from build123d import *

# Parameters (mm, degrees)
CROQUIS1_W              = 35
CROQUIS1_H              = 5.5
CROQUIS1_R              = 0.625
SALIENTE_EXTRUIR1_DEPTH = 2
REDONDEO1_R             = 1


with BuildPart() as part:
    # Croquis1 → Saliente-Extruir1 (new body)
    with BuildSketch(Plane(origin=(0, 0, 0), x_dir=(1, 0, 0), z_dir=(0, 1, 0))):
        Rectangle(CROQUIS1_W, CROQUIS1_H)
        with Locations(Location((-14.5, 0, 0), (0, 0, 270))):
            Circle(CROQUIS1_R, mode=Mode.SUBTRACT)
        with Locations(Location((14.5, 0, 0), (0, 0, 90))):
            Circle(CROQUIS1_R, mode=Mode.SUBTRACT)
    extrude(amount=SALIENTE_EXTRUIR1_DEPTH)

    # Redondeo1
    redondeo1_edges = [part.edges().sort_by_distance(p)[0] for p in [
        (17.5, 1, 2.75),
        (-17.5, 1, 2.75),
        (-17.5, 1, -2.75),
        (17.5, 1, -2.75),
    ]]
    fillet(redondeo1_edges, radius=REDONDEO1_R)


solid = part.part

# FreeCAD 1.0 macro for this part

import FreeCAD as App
import Part
import Sketcher
from FreeCAD import Vector


def edges_at(feature, points):
    """Names of the edges that pass closest to the given points."""
    edges = feature.Shape.Edges
    near = lambda p: min(range(len(edges)), key=lambda i: edges[i].distToShape(Part.Vertex(*p))[0])
    return sorted({f"Edge{near(p) + 1}" for p in points})

doc = App.newDocument("Part")
body = doc.addObject("PartDesign::Body", "Body")

# Sketch on XZ plane
sketch1 = doc.addObject("Sketcher::SketchObject", "Sketch")
body.addObject(sketch1)
sketch1.AttachmentSupport = (doc.XZ_Plane, [""])
sketch1.MapMode = "FlatFace"
sketch1.addGeometry([
    Part.LineSegment(Vector(-17.5, -2.8, 0), Vector(-17.5, 2.8, 0)),  # 0
    Part.LineSegment(Vector(-17.5, 2.8, 0), Vector(17.5, 2.8, 0)),  # 1
    Part.LineSegment(Vector(17.5, 2.8, 0), Vector(17.5, -2.8, 0)),  # 2
    Part.LineSegment(Vector(17.5, -2.8, 0), Vector(-17.5, -2.8, 0)),  # 3
    Part.Circle(Vector(-14.5, 0, 0), Vector(0, 0, 1), 0.6),  # 4
    Part.Circle(Vector(14.5, 0, 0), Vector(0, 0, 1), 0.6),  # 5
], False)
sketch1.addConstraint([
    Sketcher.Constraint("Coincident", 0, 2, 1, 1),
    Sketcher.Constraint("Coincident", 1, 2, 2, 1),
    Sketcher.Constraint("Coincident", 2, 2, 3, 1),
    Sketcher.Constraint("Coincident", 3, 2, 0, 1),
    Sketcher.Constraint("Vertical", 0),
    Sketcher.Constraint("Horizontal", 1),
    Sketcher.Constraint("Vertical", 2),
    Sketcher.Constraint("Horizontal", 3),
    Sketcher.Constraint("Equal", 4, 5),
    Sketcher.Constraint("Symmetric", 4, 3, 5, 3, -1, 1),
    Sketcher.Constraint("Symmetric", 0, 2, 2, 2, -1, 1),
    Sketcher.Constraint("PointOnObject", 4, 3, -1),
    Sketcher.Constraint("Diameter", 4, 1.25),
    Sketcher.Constraint("DistanceX", 1, 1, 1, 2, 35.0),
    Sketcher.Constraint("DistanceY", 0, 1, 0, 2, 5.5),
    Sketcher.Constraint("DistanceX", 4, 3, 5, 3, 29.0),
])
pad1 = doc.addObject("PartDesign::Pad", "Pad")
body.addObject(pad1)
pad1.Profile = sketch1
pad1.Length = 2
pad1.Reversed = True
doc.recompute()

fillet = doc.addObject("PartDesign::Fillet", "Fillet")
body.addObject(fillet)
fillet.Base = (pad1, edges_at(pad1, [
    (17.5, 1, 2.75),
    (-17.5, 1, 2.75),
    (-17.5, 1, -2.75),
    (17.5, 1, -2.75),
]))
fillet.Radius = 1

doc.recompute()
